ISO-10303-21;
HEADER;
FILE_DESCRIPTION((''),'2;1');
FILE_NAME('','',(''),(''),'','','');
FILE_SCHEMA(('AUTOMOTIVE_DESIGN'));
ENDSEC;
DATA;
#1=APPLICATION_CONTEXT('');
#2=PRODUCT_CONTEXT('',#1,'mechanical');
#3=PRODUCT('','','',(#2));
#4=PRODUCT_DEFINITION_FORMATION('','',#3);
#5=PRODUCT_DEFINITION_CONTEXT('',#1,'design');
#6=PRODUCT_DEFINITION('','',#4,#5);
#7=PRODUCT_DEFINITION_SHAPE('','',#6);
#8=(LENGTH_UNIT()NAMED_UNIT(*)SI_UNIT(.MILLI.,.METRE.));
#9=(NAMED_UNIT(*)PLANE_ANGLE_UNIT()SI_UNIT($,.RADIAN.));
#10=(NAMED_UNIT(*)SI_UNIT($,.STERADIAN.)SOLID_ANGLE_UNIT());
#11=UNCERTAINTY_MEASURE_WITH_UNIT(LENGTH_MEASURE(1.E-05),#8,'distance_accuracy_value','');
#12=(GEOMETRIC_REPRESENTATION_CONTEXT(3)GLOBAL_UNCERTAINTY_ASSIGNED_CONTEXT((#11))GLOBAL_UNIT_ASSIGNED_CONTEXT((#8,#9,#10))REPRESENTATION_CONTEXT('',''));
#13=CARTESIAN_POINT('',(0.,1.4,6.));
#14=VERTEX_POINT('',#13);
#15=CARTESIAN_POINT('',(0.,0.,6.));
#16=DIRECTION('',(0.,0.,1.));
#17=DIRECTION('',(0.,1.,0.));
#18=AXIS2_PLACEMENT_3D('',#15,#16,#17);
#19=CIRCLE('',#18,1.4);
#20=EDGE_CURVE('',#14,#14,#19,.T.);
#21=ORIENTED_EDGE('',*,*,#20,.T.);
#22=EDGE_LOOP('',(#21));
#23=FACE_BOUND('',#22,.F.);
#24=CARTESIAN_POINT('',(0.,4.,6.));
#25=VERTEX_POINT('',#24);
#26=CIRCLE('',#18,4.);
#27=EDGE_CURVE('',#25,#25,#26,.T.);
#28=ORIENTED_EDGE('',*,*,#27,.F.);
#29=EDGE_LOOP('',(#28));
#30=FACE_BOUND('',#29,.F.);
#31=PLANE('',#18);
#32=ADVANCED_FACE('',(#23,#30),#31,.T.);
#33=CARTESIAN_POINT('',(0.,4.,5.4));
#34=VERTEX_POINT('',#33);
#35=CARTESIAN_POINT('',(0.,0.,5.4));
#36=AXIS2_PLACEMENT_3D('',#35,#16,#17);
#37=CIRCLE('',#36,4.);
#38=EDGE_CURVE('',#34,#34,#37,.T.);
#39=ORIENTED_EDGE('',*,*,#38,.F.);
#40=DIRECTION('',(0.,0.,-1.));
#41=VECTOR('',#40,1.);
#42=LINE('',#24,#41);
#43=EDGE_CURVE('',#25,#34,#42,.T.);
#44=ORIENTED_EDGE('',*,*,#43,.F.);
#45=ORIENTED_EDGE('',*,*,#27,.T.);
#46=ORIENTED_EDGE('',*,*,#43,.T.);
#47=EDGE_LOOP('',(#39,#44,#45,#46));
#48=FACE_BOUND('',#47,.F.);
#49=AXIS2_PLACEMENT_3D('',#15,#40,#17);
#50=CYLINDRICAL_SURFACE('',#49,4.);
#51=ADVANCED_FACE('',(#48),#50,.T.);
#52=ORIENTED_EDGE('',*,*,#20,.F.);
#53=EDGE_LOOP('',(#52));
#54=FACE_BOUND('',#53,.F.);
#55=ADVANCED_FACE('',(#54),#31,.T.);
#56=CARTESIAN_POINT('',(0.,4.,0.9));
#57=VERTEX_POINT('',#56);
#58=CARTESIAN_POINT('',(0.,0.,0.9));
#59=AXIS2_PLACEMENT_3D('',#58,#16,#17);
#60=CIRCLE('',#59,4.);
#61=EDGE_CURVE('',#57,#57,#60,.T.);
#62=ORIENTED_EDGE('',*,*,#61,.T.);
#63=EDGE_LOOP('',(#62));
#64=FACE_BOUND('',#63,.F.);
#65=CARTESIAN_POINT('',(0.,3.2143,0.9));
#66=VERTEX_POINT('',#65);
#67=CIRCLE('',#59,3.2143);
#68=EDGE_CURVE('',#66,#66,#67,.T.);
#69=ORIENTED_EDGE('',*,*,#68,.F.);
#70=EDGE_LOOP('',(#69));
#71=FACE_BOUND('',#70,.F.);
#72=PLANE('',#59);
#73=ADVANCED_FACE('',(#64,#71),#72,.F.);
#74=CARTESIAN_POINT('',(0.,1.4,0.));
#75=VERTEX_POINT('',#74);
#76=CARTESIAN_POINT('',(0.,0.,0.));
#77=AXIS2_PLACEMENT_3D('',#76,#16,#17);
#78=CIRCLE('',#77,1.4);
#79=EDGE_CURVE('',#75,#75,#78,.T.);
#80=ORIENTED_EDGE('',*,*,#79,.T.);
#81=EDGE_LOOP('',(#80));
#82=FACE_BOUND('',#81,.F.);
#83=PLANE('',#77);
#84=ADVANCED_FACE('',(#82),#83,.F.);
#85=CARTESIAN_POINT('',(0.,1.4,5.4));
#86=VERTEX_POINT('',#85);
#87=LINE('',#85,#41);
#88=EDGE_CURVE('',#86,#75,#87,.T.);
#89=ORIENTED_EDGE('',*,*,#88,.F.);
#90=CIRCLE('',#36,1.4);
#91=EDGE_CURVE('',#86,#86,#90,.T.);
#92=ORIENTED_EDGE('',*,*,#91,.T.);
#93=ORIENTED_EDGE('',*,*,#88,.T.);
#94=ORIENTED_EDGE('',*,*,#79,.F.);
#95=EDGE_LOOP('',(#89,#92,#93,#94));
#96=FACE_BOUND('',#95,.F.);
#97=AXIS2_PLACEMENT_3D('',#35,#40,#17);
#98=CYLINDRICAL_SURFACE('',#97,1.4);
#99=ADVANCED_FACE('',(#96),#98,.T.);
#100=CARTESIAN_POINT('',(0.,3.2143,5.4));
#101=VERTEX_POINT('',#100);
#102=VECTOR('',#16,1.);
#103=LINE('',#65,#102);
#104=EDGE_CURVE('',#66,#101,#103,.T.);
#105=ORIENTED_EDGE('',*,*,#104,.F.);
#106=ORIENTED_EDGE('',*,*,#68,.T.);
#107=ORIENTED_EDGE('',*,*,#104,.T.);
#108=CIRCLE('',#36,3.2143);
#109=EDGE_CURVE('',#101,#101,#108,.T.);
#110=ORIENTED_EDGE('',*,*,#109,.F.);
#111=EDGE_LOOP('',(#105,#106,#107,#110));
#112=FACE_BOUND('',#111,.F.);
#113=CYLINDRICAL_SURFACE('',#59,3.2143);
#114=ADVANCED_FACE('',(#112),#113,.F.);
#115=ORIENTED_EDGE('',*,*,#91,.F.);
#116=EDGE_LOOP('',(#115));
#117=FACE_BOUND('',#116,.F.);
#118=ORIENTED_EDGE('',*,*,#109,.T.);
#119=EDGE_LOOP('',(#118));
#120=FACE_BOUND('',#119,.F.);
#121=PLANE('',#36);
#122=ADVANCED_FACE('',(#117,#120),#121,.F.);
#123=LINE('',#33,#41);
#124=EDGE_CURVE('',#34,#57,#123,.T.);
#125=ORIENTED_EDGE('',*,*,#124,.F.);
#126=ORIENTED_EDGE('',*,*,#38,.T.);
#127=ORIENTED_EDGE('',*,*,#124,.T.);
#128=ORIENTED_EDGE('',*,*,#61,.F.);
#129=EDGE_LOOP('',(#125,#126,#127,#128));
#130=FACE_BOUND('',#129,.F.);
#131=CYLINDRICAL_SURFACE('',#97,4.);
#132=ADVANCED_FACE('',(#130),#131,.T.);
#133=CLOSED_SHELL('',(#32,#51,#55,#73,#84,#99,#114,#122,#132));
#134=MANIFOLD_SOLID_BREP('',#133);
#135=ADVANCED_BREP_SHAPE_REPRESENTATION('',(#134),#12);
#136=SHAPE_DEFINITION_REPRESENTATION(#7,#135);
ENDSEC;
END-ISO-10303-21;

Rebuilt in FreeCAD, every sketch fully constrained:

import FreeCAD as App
import Part
import Sketcher

V = App.Vector

doc = App.newDocument("Part")
body = doc.addObject("PartDesign::Body", "Body")

# Sketch on YZ plane
sketch1 = body.newObject("Sketcher::SketchObject", "Sketch")
sketch1.AttachmentSupport = (doc.getObject("YZ_Plane"), [""])
sketch1.MapMode = "FlatFace"
sketch1.addGeometry([
    Part.LineSegment(V(4, 0.9, 0), V(4, 6, 0)),  # 0
    Part.LineSegment(V(4, 6, 0), V(0, 6, 0)),  # 1
    Part.LineSegment(V(0, 6, 0), V(0, 0, 0)),  # 2
    Part.LineSegment(V(0, 0, 0), V(1.4, 0, 0)),  # 3
    Part.LineSegment(V(1.4, 0, 0), V(1.4, 5.4, 0)),  # 4
    Part.LineSegment(V(1.4, 5.4, 0), V(3.2, 5.4, 0)),  # 5
    Part.LineSegment(V(3.2, 5.4, 0), V(3.2, 0.9, 0)),  # 6
    Part.LineSegment(V(3.2, 0.9, 0), V(4, 0.9, 0)),  # 7
], False)
sketch1.addConstraint([
    Sketcher.Constraint("Coincident", 0, 2, 1, 1),
    Sketcher.Constraint("Coincident", 1, 2, 2, 1),
    Sketcher.Constraint("Coincident", 2, 2, 3, 1),
    Sketcher.Constraint("Coincident", 3, 2, 4, 1),
    Sketcher.Constraint("Coincident", 4, 2, 5, 1),
    Sketcher.Constraint("Coincident", 5, 2, 6, 1),
    Sketcher.Constraint("Coincident", 6, 2, 7, 1),
    Sketcher.Constraint("Coincident", 7, 2, 0, 1),
    Sketcher.Constraint("Vertical", 0),
    Sketcher.Constraint("Horizontal", 1),
    Sketcher.Constraint("Vertical", 2),
    Sketcher.Constraint("Horizontal", 3),
    Sketcher.Constraint("Vertical", 4),
    Sketcher.Constraint("Horizontal", 5),
    Sketcher.Constraint("Vertical", 6),
    Sketcher.Constraint("Horizontal", 7),
    Sketcher.Constraint("Coincident", 2, 2, -1, 1),
    Sketcher.Constraint("DistanceX", 1, 2, 1, 1, 4.0),
    Sketcher.Constraint("DistanceY", 2, 2, 2, 1, 6.0),
    Sketcher.Constraint("DistanceX", 3, 1, 3, 2, 1.4),
    Sketcher.Constraint("DistanceY", 0, 1, 0, 2, 5.1),
    Sketcher.Constraint("DistanceY", 4, 1, 4, 2, 5.4),
    Sketcher.Constraint("DistanceX", 5, 1, 5, 2, 1.8143),
])
revolution = body.newObject("PartDesign::Revolution", "Revolution")
revolution.Profile = sketch1
revolution.ReferenceAxis = (sketch1, ["V_Axis"])
revolution.Angle = 360

doc.recompute()
